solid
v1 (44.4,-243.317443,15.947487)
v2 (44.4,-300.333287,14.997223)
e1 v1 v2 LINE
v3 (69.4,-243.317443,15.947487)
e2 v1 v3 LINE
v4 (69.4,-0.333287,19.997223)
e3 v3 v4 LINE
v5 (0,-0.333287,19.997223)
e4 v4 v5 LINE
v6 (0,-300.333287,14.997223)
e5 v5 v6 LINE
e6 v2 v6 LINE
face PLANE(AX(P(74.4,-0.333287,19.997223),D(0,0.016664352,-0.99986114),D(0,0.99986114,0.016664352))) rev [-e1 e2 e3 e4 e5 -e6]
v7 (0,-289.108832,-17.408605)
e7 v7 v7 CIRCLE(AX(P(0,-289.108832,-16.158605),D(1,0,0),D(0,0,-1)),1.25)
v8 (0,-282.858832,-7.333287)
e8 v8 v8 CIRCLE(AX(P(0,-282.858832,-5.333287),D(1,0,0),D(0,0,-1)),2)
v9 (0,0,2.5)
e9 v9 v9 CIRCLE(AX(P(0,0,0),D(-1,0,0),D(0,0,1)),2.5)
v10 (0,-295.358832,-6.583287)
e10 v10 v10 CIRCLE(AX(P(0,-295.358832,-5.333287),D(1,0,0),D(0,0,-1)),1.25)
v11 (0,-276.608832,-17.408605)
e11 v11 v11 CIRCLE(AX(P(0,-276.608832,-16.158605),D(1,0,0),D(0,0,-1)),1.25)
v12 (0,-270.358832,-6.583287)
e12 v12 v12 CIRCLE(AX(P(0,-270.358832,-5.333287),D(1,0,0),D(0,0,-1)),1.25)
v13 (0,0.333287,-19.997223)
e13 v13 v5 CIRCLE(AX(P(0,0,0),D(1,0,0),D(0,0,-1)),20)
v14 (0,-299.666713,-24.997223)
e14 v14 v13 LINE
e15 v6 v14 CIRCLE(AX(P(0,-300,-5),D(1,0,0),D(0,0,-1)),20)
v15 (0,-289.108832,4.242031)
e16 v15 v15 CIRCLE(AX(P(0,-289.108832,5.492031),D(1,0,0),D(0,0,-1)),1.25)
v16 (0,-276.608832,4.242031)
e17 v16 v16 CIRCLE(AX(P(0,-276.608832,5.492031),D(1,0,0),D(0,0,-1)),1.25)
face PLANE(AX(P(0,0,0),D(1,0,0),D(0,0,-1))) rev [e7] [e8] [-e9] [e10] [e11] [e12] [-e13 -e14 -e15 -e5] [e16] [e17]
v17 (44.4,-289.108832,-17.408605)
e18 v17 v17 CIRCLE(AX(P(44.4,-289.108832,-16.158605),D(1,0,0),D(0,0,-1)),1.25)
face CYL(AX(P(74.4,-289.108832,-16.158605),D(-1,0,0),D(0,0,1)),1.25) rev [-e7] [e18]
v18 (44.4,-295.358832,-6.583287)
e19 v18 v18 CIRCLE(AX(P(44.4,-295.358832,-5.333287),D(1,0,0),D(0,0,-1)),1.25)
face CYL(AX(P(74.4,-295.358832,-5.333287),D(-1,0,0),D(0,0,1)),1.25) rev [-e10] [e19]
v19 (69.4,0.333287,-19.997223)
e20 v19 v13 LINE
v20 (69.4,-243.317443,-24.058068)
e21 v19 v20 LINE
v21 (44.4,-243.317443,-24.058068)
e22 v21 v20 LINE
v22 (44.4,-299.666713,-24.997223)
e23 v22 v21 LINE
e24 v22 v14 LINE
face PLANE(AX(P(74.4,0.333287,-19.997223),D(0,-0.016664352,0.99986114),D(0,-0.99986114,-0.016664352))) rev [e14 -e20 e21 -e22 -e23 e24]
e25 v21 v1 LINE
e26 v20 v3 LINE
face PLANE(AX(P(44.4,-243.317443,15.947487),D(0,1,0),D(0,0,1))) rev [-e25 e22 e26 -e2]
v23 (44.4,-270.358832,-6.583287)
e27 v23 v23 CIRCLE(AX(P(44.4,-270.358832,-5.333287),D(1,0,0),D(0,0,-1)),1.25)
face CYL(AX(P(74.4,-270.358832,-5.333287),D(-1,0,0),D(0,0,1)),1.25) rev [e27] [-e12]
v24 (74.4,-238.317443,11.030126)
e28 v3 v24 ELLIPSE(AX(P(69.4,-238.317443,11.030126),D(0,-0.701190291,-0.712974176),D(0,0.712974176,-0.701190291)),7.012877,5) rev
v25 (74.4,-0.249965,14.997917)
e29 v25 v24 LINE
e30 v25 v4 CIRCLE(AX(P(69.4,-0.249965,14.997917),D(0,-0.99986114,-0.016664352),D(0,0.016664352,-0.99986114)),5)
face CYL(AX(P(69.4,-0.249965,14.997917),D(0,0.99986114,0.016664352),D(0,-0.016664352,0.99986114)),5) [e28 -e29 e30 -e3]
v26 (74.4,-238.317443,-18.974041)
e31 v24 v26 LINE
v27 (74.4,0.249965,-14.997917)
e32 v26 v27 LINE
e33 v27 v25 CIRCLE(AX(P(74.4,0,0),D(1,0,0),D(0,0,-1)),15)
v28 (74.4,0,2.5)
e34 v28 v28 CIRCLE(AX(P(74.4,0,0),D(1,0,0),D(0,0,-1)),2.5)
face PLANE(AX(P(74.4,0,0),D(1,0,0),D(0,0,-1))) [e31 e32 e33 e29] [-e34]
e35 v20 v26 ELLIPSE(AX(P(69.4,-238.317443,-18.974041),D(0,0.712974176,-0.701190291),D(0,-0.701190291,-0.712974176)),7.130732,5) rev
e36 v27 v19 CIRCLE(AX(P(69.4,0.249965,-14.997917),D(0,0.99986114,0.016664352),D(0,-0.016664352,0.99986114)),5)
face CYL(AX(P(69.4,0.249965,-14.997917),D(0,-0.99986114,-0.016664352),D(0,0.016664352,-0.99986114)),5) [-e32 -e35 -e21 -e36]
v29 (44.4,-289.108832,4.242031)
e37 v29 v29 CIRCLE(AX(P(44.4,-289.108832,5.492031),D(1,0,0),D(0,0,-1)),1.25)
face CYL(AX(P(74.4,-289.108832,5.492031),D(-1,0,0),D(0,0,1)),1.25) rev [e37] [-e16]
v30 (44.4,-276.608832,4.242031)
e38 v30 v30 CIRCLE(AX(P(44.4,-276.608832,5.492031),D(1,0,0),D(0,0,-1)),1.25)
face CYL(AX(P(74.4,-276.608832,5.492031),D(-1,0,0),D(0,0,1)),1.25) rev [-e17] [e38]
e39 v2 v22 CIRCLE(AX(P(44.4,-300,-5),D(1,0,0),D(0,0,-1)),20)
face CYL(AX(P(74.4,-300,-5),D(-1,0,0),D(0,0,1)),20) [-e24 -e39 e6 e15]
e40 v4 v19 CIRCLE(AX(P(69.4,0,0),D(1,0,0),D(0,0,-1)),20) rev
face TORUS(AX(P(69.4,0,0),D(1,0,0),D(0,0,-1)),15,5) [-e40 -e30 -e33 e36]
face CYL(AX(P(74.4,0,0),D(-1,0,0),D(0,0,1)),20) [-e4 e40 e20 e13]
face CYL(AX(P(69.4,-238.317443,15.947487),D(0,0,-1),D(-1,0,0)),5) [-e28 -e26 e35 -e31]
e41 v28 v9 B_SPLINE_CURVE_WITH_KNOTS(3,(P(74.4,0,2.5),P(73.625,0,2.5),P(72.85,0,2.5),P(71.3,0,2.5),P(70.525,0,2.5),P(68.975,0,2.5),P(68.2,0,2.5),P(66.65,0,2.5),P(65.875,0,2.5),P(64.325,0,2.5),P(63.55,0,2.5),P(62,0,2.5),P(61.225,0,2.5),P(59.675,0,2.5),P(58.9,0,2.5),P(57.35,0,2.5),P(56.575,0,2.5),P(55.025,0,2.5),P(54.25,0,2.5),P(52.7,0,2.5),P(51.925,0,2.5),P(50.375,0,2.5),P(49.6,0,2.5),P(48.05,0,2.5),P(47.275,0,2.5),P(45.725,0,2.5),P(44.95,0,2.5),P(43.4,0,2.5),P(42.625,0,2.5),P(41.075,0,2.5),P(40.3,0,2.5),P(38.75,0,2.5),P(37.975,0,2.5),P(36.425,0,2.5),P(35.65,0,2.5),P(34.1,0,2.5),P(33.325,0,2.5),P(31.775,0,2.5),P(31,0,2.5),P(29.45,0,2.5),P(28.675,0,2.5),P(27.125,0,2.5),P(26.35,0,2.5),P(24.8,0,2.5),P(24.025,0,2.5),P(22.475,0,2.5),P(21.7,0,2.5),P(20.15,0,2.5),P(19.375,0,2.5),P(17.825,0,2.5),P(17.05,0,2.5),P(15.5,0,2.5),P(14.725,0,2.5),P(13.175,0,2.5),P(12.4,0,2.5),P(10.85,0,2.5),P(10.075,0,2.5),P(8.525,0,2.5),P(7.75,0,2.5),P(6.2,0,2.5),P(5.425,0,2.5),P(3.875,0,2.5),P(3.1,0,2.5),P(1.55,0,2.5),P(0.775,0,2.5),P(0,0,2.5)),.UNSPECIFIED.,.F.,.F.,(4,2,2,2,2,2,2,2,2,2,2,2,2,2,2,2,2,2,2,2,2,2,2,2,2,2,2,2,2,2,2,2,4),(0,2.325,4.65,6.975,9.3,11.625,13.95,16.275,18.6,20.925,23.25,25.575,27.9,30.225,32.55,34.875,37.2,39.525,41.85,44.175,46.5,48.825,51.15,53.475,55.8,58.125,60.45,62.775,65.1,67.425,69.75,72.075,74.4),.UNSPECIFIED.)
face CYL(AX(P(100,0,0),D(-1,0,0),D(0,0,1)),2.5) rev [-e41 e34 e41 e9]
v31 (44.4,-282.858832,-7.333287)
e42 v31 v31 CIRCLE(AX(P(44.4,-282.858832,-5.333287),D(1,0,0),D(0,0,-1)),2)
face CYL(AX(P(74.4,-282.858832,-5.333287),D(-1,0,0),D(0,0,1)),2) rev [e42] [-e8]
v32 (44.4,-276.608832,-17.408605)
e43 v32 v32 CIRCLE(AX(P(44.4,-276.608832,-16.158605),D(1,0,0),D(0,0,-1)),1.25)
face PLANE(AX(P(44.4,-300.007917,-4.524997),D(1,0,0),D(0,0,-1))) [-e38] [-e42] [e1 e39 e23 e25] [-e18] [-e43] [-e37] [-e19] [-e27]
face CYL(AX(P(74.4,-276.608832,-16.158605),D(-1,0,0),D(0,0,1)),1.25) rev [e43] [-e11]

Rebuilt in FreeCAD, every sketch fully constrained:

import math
import FreeCAD as App
import Part
import Sketcher
Q = App.Units.Quantity


def edges_at(feature, points):
    """Names of the edges that pass closest to the given points."""
    edges = feature.Shape.Edges
    near = lambda p: min(range(len(edges)), key=lambda i: edges[i].distToShape(Part.Vertex(*p))[0])
    return sorted({f"Edge{near(p) + 1}" for p in points})

doc = App.newDocument("Part")
body = doc.addObject("PartDesign::Body", "Body")

# Sketch on YZ plane
sketch1 = body.newObject("Sketcher::SketchObject", "Sketch")
sketch1.AttachmentSupport = (doc.getObject("YZ_Plane"), [""])
sketch1.MapMode = "FlatFace"
sketch1.addGeometry(Part.LineSegment(App.Vector(0, 20, 0), App.Vector(-300, 15, 0)), False)
sketch1.addGeometry(Part.ArcOfCircle(Part.Circle(App.Vector(-300, -5, 0), App.Vector(0, 0, 1), 20), math.radians(91), math.radians(271)), False)
sketch1.addGeometry(Part.LineSegment(App.Vector(-300, -25, 0), App.Vector(0, -20, 0)), False)
sketch1.addGeometry(Part.ArcOfCircle(Part.Circle(App.Vector(0, 0, 0), App.Vector(0, 0, 1), 20), math.radians(-89), math.radians(91)), False)
sketch1.addConstraint(Sketcher.Constraint("Tangent", 0, 2, 1, 1))
sketch1.addConstraint(Sketcher.Constraint("Tangent", 1, 2, 2, 1))
sketch1.addConstraint(Sketcher.Constraint("Tangent", 2, 2, 3, 1))
sketch1.addConstraint(Sketcher.Constraint("Tangent", 3, 2, 0, 1))
sketch1.addConstraint(Sketcher.Constraint("Coincident", 3, 3, -1, 1))
sketch1.addConstraint(Sketcher.Constraint("Equal", 1, 3))
sketch1.addConstraint(Sketcher.Constraint("Radius", 1, Q("20 mm")))
sketch1.addConstraint(Sketcher.Constraint("DistanceX", 1, 3, -1, 1, Q("300 mm")))
sketch1.addConstraint(Sketcher.Constraint("DistanceY", 1, 3, -1, 1, Q("5 mm")))
pad1 = body.newObject("PartDesign::Pad", "Pad")
pad1.Profile = sketch1
pad1.Length = 74.4

# Sketch on YZ plane
sketch2 = body.newObject("Sketcher::SketchObject", "Sketch001")
sketch2.AttachmentSupport = (doc.getObject("YZ_Plane"), [""])
sketch2.MapMode = "FlatFace"
sketch2.AttachmentOffset = App.Placement(App.Vector(0, 0, 74.4), App.Rotation())
sketch2.addGeometry(Part.LineSegment(App.Vector(-243, -24, 0), App.Vector(-243, 16, 0)), False)
sketch2.addGeometry(Part.LineSegment(App.Vector(-243, 16, 0), App.Vector(-300, 16, 0)), False)
sketch2.addGeometry(Part.ArcOfCircle(Part.Circle(App.Vector(-300, -5, 0), App.Vector(0, 0, 1), 20), math.radians(91), math.radians(271)), False)
sketch2.addGeometry(Part.LineSegment(App.Vector(-300, -25, 0), App.Vector(-243, -24, 0)), False)
sketch2.addConstraint(Sketcher.Constraint("Coincident", 0, 2, 1, 1))
sketch2.addConstraint(Sketcher.Constraint("Coincident", 1, 2, 2, 1))
sketch2.addConstraint(Sketcher.Constraint("Tangent", 2, 2, 3, 1))
sketch2.addConstraint(Sketcher.Constraint("Coincident", 3, 2, 0, 1))
sketch2.addConstraint(Sketcher.Constraint("Vertical", 0))
sketch2.addConstraint(Sketcher.Constraint("Horizontal", 1))
sketch2.addConstraint(Sketcher.Constraint("Radius", 2, Q("20.475069 mm")))
sketch2.addConstraint(Sketcher.Constraint("DistanceX", 1, 2, 1, 1, Q("57.015844 mm")))
sketch2.addConstraint(Sketcher.Constraint("DistanceY", 0, 1, 0, 2, Q("40.005555 mm")))
sketch2.addConstraint(Sketcher.Constraint("DistanceY", 3, 2, -1, 1, Q("24.058068 mm")))
sketch2.addConstraint(Sketcher.Constraint("DistanceX", 1, 2, 2, 3, Q("0.32537 mm")))
sketch2.addConstraint(Sketcher.Constraint("DistanceX", 2, 3, -1, 1, Q("300.007917 mm")))
pocket1 = body.newObject("PartDesign::Pocket", "Pocket")
pocket1.Profile = sketch2
pocket1.Length = 30
doc.recompute()

fillet = body.newObject("PartDesign::Fillet", "Fillet")
fillet.Base = (pocket1, edges_at(pocket1, [
    (74.4, -121.492, -22.028),
    (74.4, -243.317, -4.055),
    (74.4, 19.997, 0.333),
    (74.4, -121.825, 17.972),
]))
fillet.Radius = 5

# Sketch on YZ plane
sketch3 = body.newObject("Sketcher::SketchObject", "Sketch002")
sketch3.AttachmentSupport = (doc.getObject("YZ_Plane"), [""])
sketch3.MapMode = "FlatFace"
sketch3.addGeometry(Part.Circle(App.Vector(-270.4, -5.3, 0), App.Vector(0, 0, 1), 1.2), False)
sketch3.addGeometry(Part.Circle(App.Vector(-276.6, 5.5, 0), App.Vector(0, 0, 1), 1.2), False)
sketch3.addGeometry(Part.Circle(App.Vector(-289.1, 5.5, 0), App.Vector(0, 0, 1), 1.2), False)
sketch3.addGeometry(Part.Circle(App.Vector(-295.4, -5.3, 0), App.Vector(0, 0, 1), 1.2), False)
sketch3.addGeometry(Part.Circle(App.Vector(-289.1, -16.2, 0), App.Vector(0, 0, 1), 1.2), False)
sketch3.addGeometry(Part.Circle(App.Vector(-276.6, -16.2, 0), App.Vector(0, 0, 1), 1.2), False)
sketch3.addConstraint(Sketcher.Constraint("Equal", 0, 1))
sketch3.addConstraint(Sketcher.Constraint("Equal", 1, 2))
sketch3.addConstraint(Sketcher.Constraint("Equal", 2, 3))
sketch3.addConstraint(Sketcher.Constraint("Equal", 3, 4))
sketch3.addConstraint(Sketcher.Constraint("Equal", 4, 5))
sketch3.addConstraint(Sketcher.Constraint("Horizontal", 1, 3, 2, 3))
sketch3.addConstraint(Sketcher.Constraint("Horizontal", 0, 3, 3, 3))
sketch3.addConstraint(Sketcher.Constraint("Horizontal", 4, 3, 5, 3))
sketch3.addConstraint(Sketcher.Constraint("Vertical", 2, 3, 4, 3))
sketch3.addConstraint(Sketcher.Constraint("Vertical", 1, 3, 5, 3))
sketch3.addConstraint(Sketcher.Constraint("Diameter", 0, Q("2.5 mm")))
sketch3.addConstraint(Sketcher.Constraint("DistanceX", 3, 3, 0, 3, Q("25 mm")))
sketch3.addConstraint(Sketcher.Constraint("DistanceX", 2, 3, 1, 3, Q("12.5 mm")))
sketch3.addConstraint(Sketcher.Constraint("DistanceX", 1, 3, 0, 3, Q("6.25 mm")))
sketch3.addConstraint(Sketcher.Constraint("DistanceY", -1, 1, 1, 3, Q("5.492031 mm")))
sketch3.addConstraint(Sketcher.Constraint("DistanceX", 0, 3, -1, 1, Q("270.358832 mm")))
sketch3.addConstraint(Sketcher.Constraint("DistanceY", 0, 3, -1, 1, Q("5.333287 mm")))
sketch3.addConstraint(Sketcher.Constraint("DistanceY", 4, 3, -1, 1, Q("16.158605 mm")))
pocket2 = body.newObject("PartDesign::Pocket", "Pocket001")
pocket2.Profile = sketch3
pocket2.Type = "ThroughAll"
pocket2.Midplane = True

# Sketch on YZ plane
sketch4 = body.newObject("Sketcher::SketchObject", "Sketch003")
sketch4.AttachmentSupport = (doc.getObject("YZ_Plane"), [""])
sketch4.MapMode = "FlatFace"
sketch4.addGeometry(Part.Circle(App.Vector(-282.9, -5.3, 0), App.Vector(0, 0, 1), 2), False)
sketch4.addConstraint(Sketcher.Constraint("Diameter", 0, Q("4 mm")))
sketch4.addConstraint(Sketcher.Constraint("DistanceX", 0, 3, -1, 1, Q("282.858832 mm")))
sketch4.addConstraint(Sketcher.Constraint("DistanceY", 0, 3, -1, 1, Q("5.333287 mm")))
pocket3 = body.newObject("PartDesign::Pocket", "Pocket002")
pocket3.Profile = sketch4
pocket3.Type = "ThroughAll"
pocket3.Midplane = True

# Sketch on YZ plane
sketch5 = body.newObject("Sketcher::SketchObject", "Sketch004")
sketch5.AttachmentSupport = (doc.getObject("YZ_Plane"), [""])
sketch5.MapMode = "FlatFace"
sketch5.addGeometry(Part.Circle(App.Vector(0, 0, 0), App.Vector(0, 0, 1), 2.5), False)
sketch5.addConstraint(Sketcher.Constraint("Coincident", 0, 3, -1, 1))
sketch5.addConstraint(Sketcher.Constraint("Diameter", 0, Q("5 mm")))
pocket4 = body.newObject("PartDesign::Pocket", "Pocket003")
pocket4.Profile = sketch5
pocket4.Length = 100
pocket4.Reversed = True

doc.recompute()
